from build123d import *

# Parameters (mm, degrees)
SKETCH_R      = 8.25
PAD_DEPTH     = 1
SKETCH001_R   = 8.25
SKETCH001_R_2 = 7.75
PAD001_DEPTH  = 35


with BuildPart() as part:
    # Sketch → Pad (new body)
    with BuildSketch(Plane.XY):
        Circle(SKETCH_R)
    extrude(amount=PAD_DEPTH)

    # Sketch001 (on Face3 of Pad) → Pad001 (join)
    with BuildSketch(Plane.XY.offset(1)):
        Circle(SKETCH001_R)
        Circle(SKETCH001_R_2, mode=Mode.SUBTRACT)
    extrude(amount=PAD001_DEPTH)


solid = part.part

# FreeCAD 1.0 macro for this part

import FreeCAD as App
import Part
import Sketcher
from FreeCAD import Vector

doc = App.newDocument("Part")
body = doc.addObject("PartDesign::Body", "Body")

# Sketch on XY plane
sketch1 = body.newObject("Sketcher::SketchObject", "Sketch")
sketch1.AttachmentSupport = (doc.getObject("XY_Plane"), [""])
sketch1.MapMode = "FlatFace"
sketch1.addGeometry(Part.Circle(Vector(0, 0, 0), Vector(0, 0, 1), 8), False)
sketch1.addConstraint([
    Sketcher.Constraint("Coincident", 0, 3, -1, 1),
    Sketcher.Constraint("Diameter", 0, 16.5),
])
pad1 = body.newObject("PartDesign::Pad", "Pad")
pad1.Profile = sketch1
pad1.Length = 1

# Sketch on XY plane
sketch2 = body.newObject("Sketcher::SketchObject", "Sketch001")
sketch2.AttachmentSupport = (doc.getObject("XY_Plane"), [""])
sketch2.MapMode = "FlatFace"
sketch2.AttachmentOffset = App.Placement(Vector(0, 0, 1), App.Rotation())
sketch2.addGeometry([
    Part.Circle(Vector(0, 0, 0), Vector(0, 0, 1), 8),
    Part.Circle(Vector(0, 0, 0), Vector(0, 0, 1), 8),
], False)
sketch2.addConstraint([
    Sketcher.Constraint("Coincident", 0, 3, -1, 1),
    Sketcher.Constraint("Coincident", 1, 3, -1, 1),
    Sketcher.Constraint("Diameter", 0, 16.5),
    Sketcher.Constraint("Diameter", 1, 15.5),
])
pad2 = body.newObject("PartDesign::Pad", "Pad001")
pad2.Profile = sketch2
pad2.Length = 35

doc.recompute()
